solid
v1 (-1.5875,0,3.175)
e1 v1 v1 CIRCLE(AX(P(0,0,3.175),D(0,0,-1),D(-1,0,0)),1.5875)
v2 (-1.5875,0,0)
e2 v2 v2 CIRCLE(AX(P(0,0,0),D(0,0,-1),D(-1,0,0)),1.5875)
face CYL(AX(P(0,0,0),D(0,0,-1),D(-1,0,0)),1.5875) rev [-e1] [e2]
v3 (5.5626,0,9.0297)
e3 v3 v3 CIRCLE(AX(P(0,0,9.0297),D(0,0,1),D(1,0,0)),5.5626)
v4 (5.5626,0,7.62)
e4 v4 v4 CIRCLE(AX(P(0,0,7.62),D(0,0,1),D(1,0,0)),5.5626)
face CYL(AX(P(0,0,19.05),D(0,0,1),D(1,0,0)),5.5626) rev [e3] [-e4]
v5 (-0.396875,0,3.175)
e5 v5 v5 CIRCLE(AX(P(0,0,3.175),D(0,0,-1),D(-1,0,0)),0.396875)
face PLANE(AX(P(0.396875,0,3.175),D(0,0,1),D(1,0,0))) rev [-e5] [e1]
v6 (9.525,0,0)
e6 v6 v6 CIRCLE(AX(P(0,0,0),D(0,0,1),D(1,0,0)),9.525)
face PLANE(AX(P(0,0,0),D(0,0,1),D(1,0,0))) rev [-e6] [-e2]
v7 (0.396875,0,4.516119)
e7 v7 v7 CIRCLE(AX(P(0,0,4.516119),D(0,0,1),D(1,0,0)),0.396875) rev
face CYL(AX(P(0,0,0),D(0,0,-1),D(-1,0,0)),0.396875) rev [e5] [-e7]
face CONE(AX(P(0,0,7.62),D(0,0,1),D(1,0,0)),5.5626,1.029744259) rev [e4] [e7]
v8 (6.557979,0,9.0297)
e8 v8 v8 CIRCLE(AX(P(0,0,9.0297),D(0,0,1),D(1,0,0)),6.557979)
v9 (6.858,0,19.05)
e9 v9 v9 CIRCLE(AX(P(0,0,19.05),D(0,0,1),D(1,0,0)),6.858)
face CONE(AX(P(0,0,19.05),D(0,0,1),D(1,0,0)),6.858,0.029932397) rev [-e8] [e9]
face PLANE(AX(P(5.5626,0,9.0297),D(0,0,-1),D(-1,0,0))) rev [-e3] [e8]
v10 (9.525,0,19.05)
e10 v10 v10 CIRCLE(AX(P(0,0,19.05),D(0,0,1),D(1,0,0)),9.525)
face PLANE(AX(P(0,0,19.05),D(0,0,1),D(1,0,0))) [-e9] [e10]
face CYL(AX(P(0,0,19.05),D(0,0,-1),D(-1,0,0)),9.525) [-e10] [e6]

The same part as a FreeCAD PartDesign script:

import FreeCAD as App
import Part
import Sketcher
Q = App.Units.Quantity

doc = App.newDocument("Part")
body = doc.addObject("PartDesign::Body", "Body")

# Sketch on XY plane
sketch1 = body.newObject("Sketcher::SketchObject", "Sketch")
sketch1.AttachmentSupport = (doc.getObject("XY_Plane"), [""])
sketch1.MapMode = "FlatFace"
sketch1.addGeometry(Part.Circle(App.Vector(0, 0, 0), App.Vector(0, 0, 1), 10), False)
sketch1.addConstraint(Sketcher.Constraint("Coincident", 0, 3, -1, 1))
sketch1.addConstraint(Sketcher.Constraint("Diameter", 0, Q("0.75 in")))
pad1 = body.newObject("PartDesign::Pad", "Pad")
pad1.Profile = sketch1
pad1.Length = Q("0.75 in")

# Sketch on YZ plane
sketch2 = body.newObject("Sketcher::SketchObject", "Sketch001")
sketch2.AttachmentSupport = (doc.getObject("YZ_Plane"), [""])
sketch2.MapMode = "FlatFace"
sketch2.addGeometry(Part.LineSegment(App.Vector(0, 4.3, 0), App.Vector(0, 19.1, 0)), False)
sketch2.addGeometry(Part.LineSegment(App.Vector(0, 19.1, 0), App.Vector(-6.9, 19.1, 0)), False)
sketch2.addGeometry(Part.LineSegment(App.Vector(-6.9, 19.1, 0), App.Vector(-6.6, 9, 0)), False)
sketch2.addGeometry(Part.LineSegment(App.Vector(-6.6, 9, 0), App.Vector(-5.6, 9, 0)), False)
sketch2.addGeometry(Part.LineSegment(App.Vector(-5.6, 9, 0), App.Vector(-5.6, 7.6, 0)), False)
sketch2.addGeometry(Part.LineSegment(App.Vector(-5.6, 7.6, 0), App.Vector(0, 4.3, 0)), False)
sketch2.addConstraint(Sketcher.Constraint("Coincident", 0, 2, 1, 1))
sketch2.addConstraint(Sketcher.Constraint("Coincident", 1, 2, 2, 1))
sketch2.addConstraint(Sketcher.Constraint("Coincident", 2, 2, 3, 1))
sketch2.addConstraint(Sketcher.Constraint("Coincident", 3, 2, 4, 1))
sketch2.addConstraint(Sketcher.Constraint("Coincident", 4, 2, 5, 1))
sketch2.addConstraint(Sketcher.Constraint("Coincident", 5, 2, 0, 1))
sketch2.addConstraint(Sketcher.Constraint("Vertical", 0))
sketch2.addConstraint(Sketcher.Constraint("Horizontal", 1))
sketch2.addConstraint(Sketcher.Constraint("Horizontal", 3))
sketch2.addConstraint(Sketcher.Constraint("Vertical", 4))
sketch2.addConstraint(Sketcher.Constraint("PointOnObject", 0, 2, -2))
sketch2.addConstraint(Sketcher.Constraint("Angle", 5, Q("-31 deg")))
sketch2.addConstraint(Sketcher.Constraint("DistanceX", 1, 2, 1, 1, Q("0.27 in")))
sketch2.addConstraint(Sketcher.Constraint("DistanceY", -1, 1, 4, 2, Q("0.3 in")))
sketch2.addConstraint(Sketcher.Constraint("DistanceY", -1, 1, 0, 2, Q("0.75 in")))
sketch2.addConstraint(Sketcher.Constraint("DistanceY", 4, 2, 4, 1, Q("0.0555 in")))
sketch2.addConstraint(Sketcher.Constraint("DistanceX", 3, 2, -1, 1, Q("0.219 in")))
sketch2.addConstraint(Sketcher.Constraint("DistanceX", 3, 1, 3, 2, Q("0.995379 mm")))
groove = body.newObject("PartDesign::Groove", "Groove")
groove.Profile = sketch2
groove.ReferenceAxis = (sketch2, ["V_Axis"])
groove.Angle = 360

# Sketch on XY plane
sketch3 = body.newObject("Sketcher::SketchObject", "Sketch002")
sketch3.AttachmentSupport = (doc.getObject("XY_Plane"), [""])
sketch3.MapMode = "FlatFace"
sketch3.addGeometry(Part.Circle(App.Vector(0, 0, 0), App.Vector(0, 0, 1), 0.4), False)
sketch3.addConstraint(Sketcher.Constraint("Coincident", 0, 3, -1, 1))
sketch3.addConstraint(Sketcher.Constraint("Diameter", 0, Q("0.03125 in")))
doc.recompute()
hole = body.newObject("PartDesign::Hole", "Hole")
hole.Profile = sketch3
hole.ThreadType = "None"
hole.Diameter = Q("0.03125 in")
hole.DepthType = "Dimension"
hole.Depth = Q("0.5 in")
hole.DrillPoint = "Angled"
hole.DrillPointAngle = 118
hole.HoleCutType = "Counterbore"
hole.HoleCutDiameter = Q("0.125 in")
hole.HoleCutDepth = Q("0.125 in")
hole.Reversed = True

doc.recompute()
